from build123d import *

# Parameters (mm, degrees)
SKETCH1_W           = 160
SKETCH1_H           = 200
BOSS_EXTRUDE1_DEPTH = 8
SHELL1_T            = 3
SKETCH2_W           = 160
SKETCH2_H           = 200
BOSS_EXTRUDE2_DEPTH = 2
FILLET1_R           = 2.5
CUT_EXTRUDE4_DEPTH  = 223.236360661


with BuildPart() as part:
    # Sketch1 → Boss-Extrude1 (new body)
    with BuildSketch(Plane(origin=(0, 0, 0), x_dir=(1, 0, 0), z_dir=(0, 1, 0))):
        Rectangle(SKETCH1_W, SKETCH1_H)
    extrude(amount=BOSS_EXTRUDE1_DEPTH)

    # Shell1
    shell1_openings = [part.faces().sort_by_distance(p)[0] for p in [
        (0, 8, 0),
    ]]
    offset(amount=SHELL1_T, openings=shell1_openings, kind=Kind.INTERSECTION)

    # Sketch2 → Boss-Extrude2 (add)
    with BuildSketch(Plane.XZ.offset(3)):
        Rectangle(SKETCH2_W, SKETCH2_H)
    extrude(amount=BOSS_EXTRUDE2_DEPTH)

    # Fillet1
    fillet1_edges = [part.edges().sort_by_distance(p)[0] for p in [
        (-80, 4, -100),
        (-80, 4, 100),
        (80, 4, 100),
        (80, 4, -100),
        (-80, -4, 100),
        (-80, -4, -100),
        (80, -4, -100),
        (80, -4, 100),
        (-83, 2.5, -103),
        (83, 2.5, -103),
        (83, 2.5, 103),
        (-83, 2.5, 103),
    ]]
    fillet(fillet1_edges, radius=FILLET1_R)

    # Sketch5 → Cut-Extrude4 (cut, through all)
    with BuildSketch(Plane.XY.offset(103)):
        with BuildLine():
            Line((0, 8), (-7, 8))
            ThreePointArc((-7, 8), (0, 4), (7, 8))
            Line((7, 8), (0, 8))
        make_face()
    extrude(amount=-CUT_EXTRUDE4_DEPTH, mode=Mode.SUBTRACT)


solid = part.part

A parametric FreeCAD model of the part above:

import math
import FreeCAD as App
import Part
import Sketcher
from FreeCAD import Vector
Q = App.Units.Quantity


def edges_at(feature, points):
    """Names of the edges that pass closest to the given points."""
    edges = feature.Shape.Edges
    near = lambda p: min(range(len(edges)), key=lambda i: edges[i].distToShape(Part.Vertex(*p))[0])
    return sorted({f"Edge{near(p) + 1}" for p in points})


def faces_at(feature, points):
    """Names of the faces that lie closest to the given points."""
    faces = feature.Shape.Faces
    near = lambda p: min(range(len(faces)), key=lambda i: faces[i].distToShape(Part.Vertex(*p))[0])
    return sorted({f"Face{near(p) + 1}" for p in points})


def add_polygon(sketch, points):
    """Adds a closed chain of lines whose ends are joined by coincident constraints."""
    first, n = sketch.GeometryCount, len(points)
    for a, b in zip(points, points[1:] + points[:1]):
        sketch.addGeometry(Part.LineSegment(App.Vector(*a, 0), App.Vector(*b, 0)), False)
    for i in range(n):
        sketch.addConstraint(Sketcher.Constraint("Coincident", first + i, 2, first + (i + 1) % n, 1))

doc = App.newDocument("Part")
body = doc.addObject("PartDesign::Body", "Body")

# Sketch on XZ plane
sketch1 = body.newObject("Sketcher::SketchObject", "Sketch")
sketch1.AttachmentSupport = (doc.getObject("XZ_Plane"), [""])
sketch1.MapMode = "FlatFace"
add_polygon(sketch1, [(-80, -100), (-80, 100), (80, 100), (80, -100)])  # lines 0-3
sketch1.addConstraint([
    Sketcher.Constraint("Vertical", 0),
    Sketcher.Constraint("Horizontal", 1),
    Sketcher.Constraint("Vertical", 2),
    Sketcher.Constraint("Horizontal", 3),
    Sketcher.Constraint("Symmetric", 0, 2, 2, 2, -1, 1),
    Sketcher.Constraint("DistanceX", 1, 1, 1, 2, Q("160 mm")),
    Sketcher.Constraint("DistanceY", 0, 1, 0, 2, Q("200 mm")),
])
pad1 = body.newObject("PartDesign::Pad", "Pad")
pad1.Profile = sketch1
pad1.Length = 8
pad1.Reversed = True
doc.recompute()

thickness = body.newObject("PartDesign::Thickness", "Thickness")
thickness.Base = (pad1, faces_at(pad1, [(0, 8, 0)]))
thickness.Value = 3
thickness.Reversed = False
thickness.Join = "Intersection"

# Sketch on XZ plane
sketch2 = body.newObject("Sketcher::SketchObject", "Sketch001")
sketch2.AttachmentSupport = (doc.getObject("XZ_Plane"), [""])
sketch2.MapMode = "FlatFace"
sketch2.AttachmentOffset = App.Placement(Vector(0, 0, 3), App.Rotation())
add_polygon(sketch2, [(-80, 100), (-80, -100), (80, -100), (80, 100)])  # lines 0-3
sketch2.addConstraint([
    Sketcher.Constraint("Vertical", 0),
    Sketcher.Constraint("Horizontal", 1),
    Sketcher.Constraint("Vertical", 2),
    Sketcher.Constraint("Horizontal", 3),
    Sketcher.Constraint("Symmetric", 0, 2, 2, 2, -1, 1),
    Sketcher.Constraint("DistanceX", 1, 1, 1, 2, Q("160 mm")),
    Sketcher.Constraint("DistanceY", 0, 2, 0, 1, Q("200 mm")),
])
pad2 = body.newObject("PartDesign::Pad", "Pad001")
pad2.Profile = sketch2
pad2.Length = 2
doc.recompute()

fillet = body.newObject("PartDesign::Fillet", "Fillet")
fillet.Base = (pad2, edges_at(pad2, [
    (-80, 4, -100),
    (-80, 4, 100),
    (80, 4, 100),
    (80, 4, -100),
    (-80, -4, 100),
    (-80, -4, -100),
    (80, -4, -100),
    (80, -4, 100),
    (-83, 2.5, -103),
    (83, 2.5, -103),
    (83, 2.5, 103),
    (-83, 2.5, 103),
]))
fillet.Radius = 2.5

# Sketch on XY plane
sketch3 = body.newObject("Sketcher::SketchObject", "Sketch002")
sketch3.AttachmentSupport = (doc.getObject("XY_Plane"), [""])
sketch3.MapMode = "FlatFace"
sketch3.AttachmentOffset = App.Placement(Vector(0, 0, 103), App.Rotation())
sketch3.addGeometry([
    Part.ArcOfCircle(Part.Circle(Vector(0, 12, 0), Vector(0, 0, 1), 8), math.radians(-149), math.radians(-31)),
    Part.LineSegment(Vector(7, 8, 0), Vector(-7, 8, 0)),
], False)
sketch3.addConstraint([
    Sketcher.Constraint("Coincident", 0, 1, 1, 2),
    Sketcher.Constraint("Coincident", 1, 1, 0, 2),
    Sketcher.Constraint("Horizontal", 1),
    Sketcher.Constraint("PointOnObject", 0, 3, -2),
    Sketcher.Constraint("DistanceX", 1, 2, 1, 1, Q("14 mm")),
    Sketcher.Constraint("DistanceY", -1, 1, 0, 1, Q("8 mm")),
    Sketcher.Constraint("Radius", 0, Q("8.125 mm")),
])
pocket1 = body.newObject("PartDesign::Pocket", "Pocket")
pocket1.Profile = sketch3
pocket1.Type = "ThroughAll"

doc.recompute()
